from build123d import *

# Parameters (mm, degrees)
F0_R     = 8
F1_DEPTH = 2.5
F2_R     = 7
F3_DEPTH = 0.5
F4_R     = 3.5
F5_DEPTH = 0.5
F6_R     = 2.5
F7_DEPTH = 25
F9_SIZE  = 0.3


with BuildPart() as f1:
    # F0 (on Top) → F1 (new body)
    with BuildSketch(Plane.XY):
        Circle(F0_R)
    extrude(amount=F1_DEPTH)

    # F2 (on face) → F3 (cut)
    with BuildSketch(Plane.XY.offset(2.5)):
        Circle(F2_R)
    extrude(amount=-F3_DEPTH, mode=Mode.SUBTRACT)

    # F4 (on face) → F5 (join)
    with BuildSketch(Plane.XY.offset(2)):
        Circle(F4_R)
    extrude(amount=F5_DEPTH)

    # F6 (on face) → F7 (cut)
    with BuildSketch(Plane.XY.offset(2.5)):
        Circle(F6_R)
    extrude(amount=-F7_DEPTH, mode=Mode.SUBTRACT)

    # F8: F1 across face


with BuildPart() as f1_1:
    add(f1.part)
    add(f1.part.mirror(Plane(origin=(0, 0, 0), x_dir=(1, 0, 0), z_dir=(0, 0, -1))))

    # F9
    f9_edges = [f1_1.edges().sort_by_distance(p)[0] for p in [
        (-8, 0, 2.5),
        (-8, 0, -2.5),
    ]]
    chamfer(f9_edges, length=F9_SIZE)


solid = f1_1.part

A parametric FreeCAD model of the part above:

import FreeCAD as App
import Part
import Sketcher
Q = App.Units.Quantity


def edges_at(feature, points):
    """Names of the edges that pass closest to the given points."""
    edges = feature.Shape.Edges
    near = lambda p: min(range(len(edges)), key=lambda i: edges[i].distToShape(Part.Vertex(*p))[0])
    return sorted({f"Edge{near(p) + 1}" for p in points})

doc = App.newDocument("Part")
body = doc.addObject("PartDesign::Body", "Body")

# Sketch on XY plane
sketch1 = body.newObject("Sketcher::SketchObject", "Sketch")
sketch1.AttachmentSupport = (doc.getObject("XY_Plane"), [""])
sketch1.MapMode = "FlatFace"
sketch1.addGeometry(Part.Circle(App.Vector(0, 0, 0), App.Vector(0, 0, 1), 8), False)
sketch1.addConstraint(Sketcher.Constraint("Coincident", 0, 3, -1, 1))
sketch1.addConstraint(Sketcher.Constraint("Diameter", 0, Q("16 mm")))
pad1 = body.newObject("PartDesign::Pad", "Pad")
pad1.Profile = sketch1
pad1.Length = 2.5

# Sketch on XY plane
sketch2 = body.newObject("Sketcher::SketchObject", "Sketch001")
sketch2.AttachmentSupport = (doc.getObject("XY_Plane"), [""])
sketch2.MapMode = "FlatFace"
sketch2.AttachmentOffset = App.Placement(App.Vector(0, 0, 2.5), App.Rotation())
sketch2.addGeometry(Part.Circle(App.Vector(0, 0, 0), App.Vector(0, 0, 1), 7), False)
sketch2.addConstraint(Sketcher.Constraint("Coincident", 0, 3, -1, 1))
sketch2.addConstraint(Sketcher.Constraint("Diameter", 0, Q("14 mm")))
pocket1 = body.newObject("PartDesign::Pocket", "Pocket")
pocket1.Profile = sketch2
pocket1.Length = 0.5

# Sketch on XY plane
sketch3 = body.newObject("Sketcher::SketchObject", "Sketch002")
sketch3.AttachmentSupport = (doc.getObject("XY_Plane"), [""])
sketch3.MapMode = "FlatFace"
sketch3.AttachmentOffset = App.Placement(App.Vector(0, 0, 2), App.Rotation())
sketch3.addGeometry(Part.Circle(App.Vector(0, 0, 0), App.Vector(0, 0, 1), 3.5), False)
sketch3.addConstraint(Sketcher.Constraint("Coincident", 0, 3, -1, 1))
sketch3.addConstraint(Sketcher.Constraint("Diameter", 0, Q("7 mm")))
pad2 = body.newObject("PartDesign::Pad", "Pad001")
pad2.Profile = sketch3
pad2.Length = 0.5

# Sketch on XY plane
sketch4 = body.newObject("Sketcher::SketchObject", "Sketch003")
sketch4.AttachmentSupport = (doc.getObject("XY_Plane"), [""])
sketch4.MapMode = "FlatFace"
sketch4.AttachmentOffset = App.Placement(App.Vector(0, 0, 2.5), App.Rotation())
sketch4.addGeometry(Part.Circle(App.Vector(0, 0, 0), App.Vector(0, 0, 1), 2.5), False)
sketch4.addConstraint(Sketcher.Constraint("Coincident", 0, 3, -1, 1))
sketch4.addConstraint(Sketcher.Constraint("Diameter", 0, Q("5 mm")))
pocket2 = body.newObject("PartDesign::Pocket", "Pocket001")
pocket2.Profile = sketch4
pocket2.Length = 25
body2 = doc.addObject("PartDesign::Body", "Body001")
doc.recompute()

body2.BaseFeature = body
doc.recompute()

mirroring = doc.addObject("Part::Mirroring", "Mirroring")
mirroring.Source = body
mirroring.Base = App.Vector(0, 0, 0)
mirroring.Normal = App.Vector(0, 0, -1)
body3 = doc.addObject("PartDesign::Body", "Body002")
body3.BaseFeature = mirroring
boolean = body2.newObject("PartDesign::Boolean", "Boolean")
boolean.Type = "Fuse"
boolean.addObjects([body3])
doc.recompute()

chamfer = body2.newObject("PartDesign::Chamfer", "Chamfer")
chamfer.Base = (boolean, edges_at(boolean, [(-8, 0, 2.5), (-8, 0, -2.5)]))
chamfer.Size = 0.3
mirroring.Visibility = False

doc.recompute()
